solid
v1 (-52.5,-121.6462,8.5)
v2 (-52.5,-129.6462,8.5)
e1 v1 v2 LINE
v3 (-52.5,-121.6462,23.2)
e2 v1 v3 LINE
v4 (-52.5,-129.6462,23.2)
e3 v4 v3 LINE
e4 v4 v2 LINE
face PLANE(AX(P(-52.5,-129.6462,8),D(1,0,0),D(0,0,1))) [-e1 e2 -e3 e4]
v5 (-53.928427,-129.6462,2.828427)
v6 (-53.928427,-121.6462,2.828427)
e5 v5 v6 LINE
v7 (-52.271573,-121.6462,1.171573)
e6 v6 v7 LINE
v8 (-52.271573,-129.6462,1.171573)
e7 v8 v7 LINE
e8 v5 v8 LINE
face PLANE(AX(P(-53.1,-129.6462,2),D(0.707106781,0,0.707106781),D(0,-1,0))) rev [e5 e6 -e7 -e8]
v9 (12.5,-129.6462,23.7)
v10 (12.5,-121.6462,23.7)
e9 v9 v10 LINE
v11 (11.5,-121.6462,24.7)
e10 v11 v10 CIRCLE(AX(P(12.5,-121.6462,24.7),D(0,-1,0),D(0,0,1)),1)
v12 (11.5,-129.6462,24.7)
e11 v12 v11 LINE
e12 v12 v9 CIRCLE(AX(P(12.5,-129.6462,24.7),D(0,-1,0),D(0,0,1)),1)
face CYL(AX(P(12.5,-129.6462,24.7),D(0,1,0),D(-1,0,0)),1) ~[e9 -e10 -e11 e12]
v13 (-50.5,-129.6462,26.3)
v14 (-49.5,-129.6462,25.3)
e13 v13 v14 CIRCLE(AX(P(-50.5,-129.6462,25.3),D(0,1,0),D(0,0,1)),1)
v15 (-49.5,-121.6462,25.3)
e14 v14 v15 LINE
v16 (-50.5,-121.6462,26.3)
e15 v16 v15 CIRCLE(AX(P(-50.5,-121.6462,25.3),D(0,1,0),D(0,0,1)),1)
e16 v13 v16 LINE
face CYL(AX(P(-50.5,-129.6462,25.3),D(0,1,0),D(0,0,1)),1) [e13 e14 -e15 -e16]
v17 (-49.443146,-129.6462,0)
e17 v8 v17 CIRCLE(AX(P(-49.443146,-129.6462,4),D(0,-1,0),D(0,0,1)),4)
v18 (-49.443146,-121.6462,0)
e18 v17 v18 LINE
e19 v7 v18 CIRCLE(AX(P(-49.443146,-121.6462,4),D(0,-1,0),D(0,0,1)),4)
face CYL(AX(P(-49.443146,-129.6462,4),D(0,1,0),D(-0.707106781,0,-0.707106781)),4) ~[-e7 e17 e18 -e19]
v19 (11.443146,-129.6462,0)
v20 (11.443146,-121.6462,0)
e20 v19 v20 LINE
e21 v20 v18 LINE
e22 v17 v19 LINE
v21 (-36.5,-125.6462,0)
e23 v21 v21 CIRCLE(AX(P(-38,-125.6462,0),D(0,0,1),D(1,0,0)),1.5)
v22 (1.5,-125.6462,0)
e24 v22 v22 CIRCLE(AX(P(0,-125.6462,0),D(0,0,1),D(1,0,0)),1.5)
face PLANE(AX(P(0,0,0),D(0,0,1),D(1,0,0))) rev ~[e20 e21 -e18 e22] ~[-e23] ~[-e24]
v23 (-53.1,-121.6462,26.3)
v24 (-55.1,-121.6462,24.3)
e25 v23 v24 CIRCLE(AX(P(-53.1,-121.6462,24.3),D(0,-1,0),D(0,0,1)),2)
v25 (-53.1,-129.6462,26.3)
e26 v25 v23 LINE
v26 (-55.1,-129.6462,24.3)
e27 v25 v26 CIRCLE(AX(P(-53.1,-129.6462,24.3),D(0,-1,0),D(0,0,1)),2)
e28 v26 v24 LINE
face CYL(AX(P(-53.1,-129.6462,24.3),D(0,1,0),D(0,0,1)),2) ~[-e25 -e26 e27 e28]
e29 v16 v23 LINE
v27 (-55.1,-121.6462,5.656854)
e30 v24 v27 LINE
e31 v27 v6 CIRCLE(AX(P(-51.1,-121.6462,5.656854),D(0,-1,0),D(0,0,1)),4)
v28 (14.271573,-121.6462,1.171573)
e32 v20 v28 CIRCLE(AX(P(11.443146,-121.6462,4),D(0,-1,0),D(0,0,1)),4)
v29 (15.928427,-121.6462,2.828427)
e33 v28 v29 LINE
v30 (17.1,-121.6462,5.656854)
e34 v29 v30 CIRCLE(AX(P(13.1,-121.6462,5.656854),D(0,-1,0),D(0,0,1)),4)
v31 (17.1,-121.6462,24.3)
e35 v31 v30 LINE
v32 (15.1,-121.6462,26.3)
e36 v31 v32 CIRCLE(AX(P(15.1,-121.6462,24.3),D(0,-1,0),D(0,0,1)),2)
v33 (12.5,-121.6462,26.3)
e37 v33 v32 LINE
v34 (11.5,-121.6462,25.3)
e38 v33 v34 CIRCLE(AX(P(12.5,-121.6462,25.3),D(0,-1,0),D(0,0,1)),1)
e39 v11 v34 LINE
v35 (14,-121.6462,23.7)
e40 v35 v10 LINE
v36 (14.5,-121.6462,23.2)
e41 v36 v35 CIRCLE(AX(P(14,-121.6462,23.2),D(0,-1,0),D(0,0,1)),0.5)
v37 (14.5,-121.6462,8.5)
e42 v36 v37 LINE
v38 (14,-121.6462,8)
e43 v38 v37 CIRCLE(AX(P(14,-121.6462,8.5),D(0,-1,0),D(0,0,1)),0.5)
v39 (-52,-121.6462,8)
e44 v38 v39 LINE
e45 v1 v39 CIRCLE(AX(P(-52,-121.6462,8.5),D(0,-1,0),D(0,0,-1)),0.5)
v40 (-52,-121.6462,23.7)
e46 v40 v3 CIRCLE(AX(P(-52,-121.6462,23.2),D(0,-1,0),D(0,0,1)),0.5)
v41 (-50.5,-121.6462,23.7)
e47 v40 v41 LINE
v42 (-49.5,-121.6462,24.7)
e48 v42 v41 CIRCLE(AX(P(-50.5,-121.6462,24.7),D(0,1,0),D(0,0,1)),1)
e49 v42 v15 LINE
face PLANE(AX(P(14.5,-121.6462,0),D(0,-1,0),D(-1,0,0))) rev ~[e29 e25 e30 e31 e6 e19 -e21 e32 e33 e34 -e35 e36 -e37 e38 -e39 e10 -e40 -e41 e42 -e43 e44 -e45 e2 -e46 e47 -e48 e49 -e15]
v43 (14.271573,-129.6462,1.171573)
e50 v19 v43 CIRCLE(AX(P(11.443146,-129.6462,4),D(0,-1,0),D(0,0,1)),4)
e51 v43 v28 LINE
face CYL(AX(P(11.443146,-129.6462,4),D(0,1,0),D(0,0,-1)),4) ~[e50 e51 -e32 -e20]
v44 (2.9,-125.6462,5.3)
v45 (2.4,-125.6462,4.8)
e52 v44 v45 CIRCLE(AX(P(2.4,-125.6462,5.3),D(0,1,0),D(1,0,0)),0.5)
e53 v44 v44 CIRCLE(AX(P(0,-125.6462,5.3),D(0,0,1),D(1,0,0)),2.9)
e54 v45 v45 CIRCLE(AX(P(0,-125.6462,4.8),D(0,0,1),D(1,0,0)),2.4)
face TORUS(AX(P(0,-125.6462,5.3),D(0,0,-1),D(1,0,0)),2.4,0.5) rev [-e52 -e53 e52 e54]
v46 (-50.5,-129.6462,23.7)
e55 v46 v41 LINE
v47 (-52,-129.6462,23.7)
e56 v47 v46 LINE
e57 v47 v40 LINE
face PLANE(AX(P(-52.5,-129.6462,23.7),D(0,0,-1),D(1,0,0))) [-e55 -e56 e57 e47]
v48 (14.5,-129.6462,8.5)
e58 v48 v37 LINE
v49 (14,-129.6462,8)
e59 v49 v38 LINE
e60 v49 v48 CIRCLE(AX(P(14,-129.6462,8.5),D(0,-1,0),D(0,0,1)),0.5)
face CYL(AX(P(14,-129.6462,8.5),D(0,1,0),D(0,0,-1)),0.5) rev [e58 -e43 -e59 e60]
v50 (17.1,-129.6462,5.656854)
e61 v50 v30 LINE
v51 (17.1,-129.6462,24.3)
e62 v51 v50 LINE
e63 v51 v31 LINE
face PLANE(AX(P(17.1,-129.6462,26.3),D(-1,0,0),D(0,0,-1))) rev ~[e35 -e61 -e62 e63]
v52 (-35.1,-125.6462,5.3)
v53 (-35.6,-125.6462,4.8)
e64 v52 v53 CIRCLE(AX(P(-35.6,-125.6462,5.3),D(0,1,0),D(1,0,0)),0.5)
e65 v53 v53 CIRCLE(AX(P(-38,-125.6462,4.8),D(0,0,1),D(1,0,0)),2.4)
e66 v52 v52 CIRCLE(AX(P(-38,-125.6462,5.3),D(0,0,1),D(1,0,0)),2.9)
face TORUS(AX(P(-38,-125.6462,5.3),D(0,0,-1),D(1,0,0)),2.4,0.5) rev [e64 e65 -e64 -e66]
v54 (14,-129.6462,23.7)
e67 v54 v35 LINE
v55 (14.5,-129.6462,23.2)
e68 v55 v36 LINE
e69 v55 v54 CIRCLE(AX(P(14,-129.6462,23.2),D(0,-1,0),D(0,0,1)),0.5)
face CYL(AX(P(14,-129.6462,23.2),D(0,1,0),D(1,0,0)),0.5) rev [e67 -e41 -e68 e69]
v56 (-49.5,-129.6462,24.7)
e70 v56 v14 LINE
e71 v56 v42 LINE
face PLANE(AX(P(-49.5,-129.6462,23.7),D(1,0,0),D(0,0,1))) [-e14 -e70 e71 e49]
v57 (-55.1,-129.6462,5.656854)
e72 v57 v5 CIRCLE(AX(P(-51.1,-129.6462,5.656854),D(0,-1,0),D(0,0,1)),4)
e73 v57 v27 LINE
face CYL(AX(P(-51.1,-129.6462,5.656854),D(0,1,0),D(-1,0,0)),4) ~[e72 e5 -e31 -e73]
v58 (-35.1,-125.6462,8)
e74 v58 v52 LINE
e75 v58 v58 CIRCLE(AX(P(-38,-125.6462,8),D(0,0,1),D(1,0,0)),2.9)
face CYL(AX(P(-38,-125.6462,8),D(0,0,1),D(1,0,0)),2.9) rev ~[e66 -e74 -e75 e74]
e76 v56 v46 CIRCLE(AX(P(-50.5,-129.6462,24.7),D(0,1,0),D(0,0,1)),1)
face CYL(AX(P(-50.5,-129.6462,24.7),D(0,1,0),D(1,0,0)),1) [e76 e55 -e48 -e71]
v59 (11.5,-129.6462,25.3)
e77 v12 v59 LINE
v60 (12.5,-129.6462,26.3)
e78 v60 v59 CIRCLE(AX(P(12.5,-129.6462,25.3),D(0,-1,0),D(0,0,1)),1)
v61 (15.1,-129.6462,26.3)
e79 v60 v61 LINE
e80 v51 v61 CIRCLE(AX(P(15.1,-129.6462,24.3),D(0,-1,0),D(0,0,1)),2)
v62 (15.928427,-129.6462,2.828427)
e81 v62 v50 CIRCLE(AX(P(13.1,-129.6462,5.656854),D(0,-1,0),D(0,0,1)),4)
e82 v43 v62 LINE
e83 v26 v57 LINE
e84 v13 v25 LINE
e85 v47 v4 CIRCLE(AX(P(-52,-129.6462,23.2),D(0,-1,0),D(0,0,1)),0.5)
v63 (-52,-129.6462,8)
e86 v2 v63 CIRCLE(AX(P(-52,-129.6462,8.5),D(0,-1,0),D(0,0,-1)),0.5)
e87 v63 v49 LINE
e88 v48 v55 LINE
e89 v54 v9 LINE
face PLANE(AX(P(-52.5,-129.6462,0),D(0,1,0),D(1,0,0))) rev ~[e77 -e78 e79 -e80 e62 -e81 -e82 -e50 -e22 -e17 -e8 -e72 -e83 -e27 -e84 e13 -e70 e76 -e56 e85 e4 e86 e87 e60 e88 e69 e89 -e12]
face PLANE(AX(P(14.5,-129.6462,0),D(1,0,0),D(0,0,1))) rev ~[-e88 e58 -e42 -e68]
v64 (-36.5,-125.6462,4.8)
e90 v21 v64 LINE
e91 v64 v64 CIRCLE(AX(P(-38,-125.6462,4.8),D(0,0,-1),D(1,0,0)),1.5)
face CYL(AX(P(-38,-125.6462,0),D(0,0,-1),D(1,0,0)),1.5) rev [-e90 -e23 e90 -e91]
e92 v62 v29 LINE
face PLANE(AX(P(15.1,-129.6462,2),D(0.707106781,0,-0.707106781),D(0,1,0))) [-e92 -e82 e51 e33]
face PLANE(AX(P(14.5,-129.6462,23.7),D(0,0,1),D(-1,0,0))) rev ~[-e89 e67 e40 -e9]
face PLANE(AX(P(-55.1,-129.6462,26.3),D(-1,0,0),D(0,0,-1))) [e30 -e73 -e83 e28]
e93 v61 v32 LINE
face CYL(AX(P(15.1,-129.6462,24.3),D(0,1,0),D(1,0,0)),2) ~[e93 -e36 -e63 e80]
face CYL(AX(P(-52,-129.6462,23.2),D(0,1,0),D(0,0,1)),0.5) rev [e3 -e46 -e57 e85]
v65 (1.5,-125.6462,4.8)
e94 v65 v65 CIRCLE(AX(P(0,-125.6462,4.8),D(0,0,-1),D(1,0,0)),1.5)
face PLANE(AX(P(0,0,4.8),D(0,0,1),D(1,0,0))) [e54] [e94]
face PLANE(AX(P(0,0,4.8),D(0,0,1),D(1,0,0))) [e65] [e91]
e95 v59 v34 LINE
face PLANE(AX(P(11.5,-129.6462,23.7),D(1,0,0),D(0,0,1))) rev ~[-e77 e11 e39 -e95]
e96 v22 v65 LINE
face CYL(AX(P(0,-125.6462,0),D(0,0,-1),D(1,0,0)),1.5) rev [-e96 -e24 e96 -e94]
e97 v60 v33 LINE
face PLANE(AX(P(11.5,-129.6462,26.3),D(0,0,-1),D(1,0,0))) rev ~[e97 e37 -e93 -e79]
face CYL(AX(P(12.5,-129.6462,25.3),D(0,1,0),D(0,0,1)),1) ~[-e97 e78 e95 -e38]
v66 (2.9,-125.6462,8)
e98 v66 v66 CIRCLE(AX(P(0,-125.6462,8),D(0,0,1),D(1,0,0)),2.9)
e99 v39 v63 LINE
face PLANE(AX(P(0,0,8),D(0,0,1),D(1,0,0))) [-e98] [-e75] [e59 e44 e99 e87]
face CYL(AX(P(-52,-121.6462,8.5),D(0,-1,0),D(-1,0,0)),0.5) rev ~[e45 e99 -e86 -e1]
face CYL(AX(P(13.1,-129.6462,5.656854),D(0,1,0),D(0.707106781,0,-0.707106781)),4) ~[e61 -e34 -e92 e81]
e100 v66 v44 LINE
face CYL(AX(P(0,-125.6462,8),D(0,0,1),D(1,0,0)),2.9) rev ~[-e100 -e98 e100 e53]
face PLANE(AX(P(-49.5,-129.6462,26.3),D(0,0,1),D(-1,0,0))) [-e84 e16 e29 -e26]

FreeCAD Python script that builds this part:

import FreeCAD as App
import Part
import Sketcher


def edges_at(feature, points):
    """Names of the edges that pass closest to the given points."""
    edges = feature.Shape.Edges
    near = lambda p: min(range(len(edges)), key=lambda i: edges[i].distToShape(Part.Vertex(*p))[0])
    return sorted({f"Edge{near(p) + 1}" for p in points})

doc = App.newDocument("Part")
body = doc.addObject("PartDesign::Body", "Body")

sketch1 = body.newObject("Sketcher::SketchObject", "Sketch")
sketch1.AttachmentSupport = (doc.getObject("XY_Plane"), [""])
sketch1.MapMode = "FlatFace"
sketch1.addGeometry([
    Part.LineSegment(App.Vector(14.5, -129.6, 0), App.Vector(14.5, -121.6, 0)),
    Part.LineSegment(App.Vector(14.5, -121.6, 0), App.Vector(-52.5, -121.6, 0)),
    Part.LineSegment(App.Vector(-52.5, -121.6, 0), App.Vector(-52.5, -129.6, 0)),
    Part.LineSegment(App.Vector(-52.5, -129.6, 0), App.Vector(14.5, -129.6, 0)),
    Part.Circle(App.Vector(-38, -125.6, 0), App.Vector(0, 0, 1), 1.5),
    Part.Circle(App.Vector(0, -125.6, 0), App.Vector(0, 0, 1), 1.5),
], False)
sketch1.addConstraint([
    Sketcher.Constraint("Coincident", 0, 2, 1, 1),
    Sketcher.Constraint("Coincident", 1, 2, 2, 1),
    Sketcher.Constraint("Coincident", 2, 2, 3, 1),
    Sketcher.Constraint("Coincident", 3, 2, 0, 1),
    Sketcher.Constraint("Vertical", 0),
    Sketcher.Constraint("Horizontal", 1),
    Sketcher.Constraint("Vertical", 2),
    Sketcher.Constraint("Horizontal", 3),
    Sketcher.Constraint("Equal", 4, 5),
    Sketcher.Constraint("PointOnObject", 5, 3, -2),
    Sketcher.Constraint("Horizontal", 4, 3, 5, 3),
    Sketcher.Constraint("DistanceX", 1, 2, 1, 1, 67.0),
    Sketcher.Constraint("Diameter", 4, 3.0),
    Sketcher.Constraint("DistanceX", 4, 3, -1, 1, 38.0),
    Sketcher.Constraint("DistanceY", 5, 3, 0, 2, 4.0),
    Sketcher.Constraint("DistanceY", 2, 2, 4, 3, 4.0),
    Sketcher.Constraint("DistanceX", -1, 1, 0, 2, 14.5),
    Sketcher.Constraint("DistanceY", 4, 3, -1, 1, 125.6462),
])
pad1 = body.newObject("PartDesign::Pad", "Pad")
pad1.Profile = sketch1
pad1.Length = 8

sketch2 = body.newObject("Sketcher::SketchObject", "Sketch001")
sketch2.AttachmentSupport = (doc.getObject("XY_Plane"), [""])
sketch2.MapMode = "FlatFace"
sketch2.AttachmentOffset = App.Placement(App.Vector(0, 0, 8), App.Rotation())
sketch2.addGeometry([
    Part.Circle(App.Vector(0, -125.6, 0), App.Vector(0, 0, 1), 2.9),
    Part.Circle(App.Vector(-38, -125.6, 0), App.Vector(0, 0, 1), 2.9),
], False)
sketch2.addConstraint([
    Sketcher.Constraint("Equal", 0, 1),
    Sketcher.Constraint("PointOnObject", 0, 3, -2),
    Sketcher.Constraint("Horizontal", 0, 3, 1, 3),
    Sketcher.Constraint("Diameter", 0, 5.8),
    Sketcher.Constraint("DistanceX", 1, 3, -1, 1, 38.0),
    Sketcher.Constraint("DistanceY", 0, 3, -1, 1, 125.6462),
])
pocket1 = body.newObject("PartDesign::Pocket", "Pocket")
pocket1.Profile = sketch2
pocket1.Length = 3.2
doc.recompute()

fillet = body.newObject("PartDesign::Fillet", "Fillet")
fillet.Base = (pocket1, edges_at(pocket1, [(-40.9, -125.646, 4.8), (-2.9, -125.646, 4.8)]))
fillet.Radius = 0.5

sketch3 = body.newObject("Sketcher::SketchObject", "Sketch002")
sketch3.AttachmentSupport = (doc.getObject("XZ_Plane"), [""])
sketch3.MapMode = "FlatFace"
sketch3.AttachmentOffset = App.Placement(App.Vector(0, 0, 129.6462), App.Rotation())
sketch3.addGeometry([
    Part.LineSegment(App.Vector(-55.1, 0, 0), App.Vector(-52.5, 0, 0)),
    Part.LineSegment(App.Vector(-52.5, 0, 0), App.Vector(-52.5, 23.7, 0)),
    Part.LineSegment(App.Vector(-52.5, 23.7, 0), App.Vector(-49.5, 23.7, 0)),
    Part.LineSegment(App.Vector(-49.5, 23.7, 0), App.Vector(-49.5, 26.3, 0)),
    Part.LineSegment(App.Vector(-49.5, 26.3, 0), App.Vector(-55.1, 26.3, 0)),
    Part.LineSegment(App.Vector(-55.1, 26.3, 0), App.Vector(-55.1, 0, 0)),
    Part.LineSegment(App.Vector(14.5, 23.7, 0), App.Vector(14.5, 0, 0)),
    Part.LineSegment(App.Vector(14.5, 0, 0), App.Vector(17.1, 0, 0)),
    Part.LineSegment(App.Vector(17.1, 0, 0), App.Vector(17.1, 26.3, 0)),
    Part.LineSegment(App.Vector(17.1, 26.3, 0), App.Vector(11.5, 26.3, 0)),
    Part.LineSegment(App.Vector(11.5, 26.3, 0), App.Vector(11.5, 23.7, 0)),
    Part.LineSegment(App.Vector(11.5, 23.7, 0), App.Vector(14.5, 23.7, 0)),
], False)
sketch3.addConstraint([
    Sketcher.Constraint("Coincident", 0, 2, 1, 1),
    Sketcher.Constraint("Coincident", 1, 2, 2, 1),
    Sketcher.Constraint("Coincident", 2, 2, 3, 1),
    Sketcher.Constraint("Coincident", 3, 2, 4, 1),
    Sketcher.Constraint("Coincident", 4, 2, 5, 1),
    Sketcher.Constraint("Coincident", 5, 2, 0, 1),
    Sketcher.Constraint("Coincident", 6, 2, 7, 1),
    Sketcher.Constraint("Coincident", 7, 2, 8, 1),
    Sketcher.Constraint("Coincident", 8, 2, 9, 1),
    Sketcher.Constraint("Coincident", 9, 2, 10, 1),
    Sketcher.Constraint("Coincident", 10, 2, 11, 1),
    Sketcher.Constraint("Coincident", 11, 2, 6, 1),
    Sketcher.Constraint("Horizontal", 0),
    Sketcher.Constraint("Vertical", 1),
    Sketcher.Constraint("Horizontal", 2),
    Sketcher.Constraint("Vertical", 3),
    Sketcher.Constraint("Horizontal", 4),
    Sketcher.Constraint("Vertical", 5),
    Sketcher.Constraint("Vertical", 6),
    Sketcher.Constraint("Horizontal", 7),
    Sketcher.Constraint("Vertical", 8),
    Sketcher.Constraint("Horizontal", 9),
    Sketcher.Constraint("Vertical", 10),
    Sketcher.Constraint("Horizontal", 11),
    Sketcher.Constraint("PointOnObject", 0, 2, -1),
    Sketcher.Constraint("PointOnObject", 6, 2, -1),
    Sketcher.Constraint("Horizontal", 4, 2, 8, 2),
    Sketcher.Constraint("Horizontal", 2, 2, 10, 2),
    Sketcher.Constraint("Equal", 0, 7),
    Sketcher.Constraint("Equal", 4, 9),
    Sketcher.Constraint("Equal", 7, 3),
    Sketcher.Constraint("DistanceX", 2, 1, 2, 2, 3.0),
    Sketcher.Constraint("DistanceX", 0, 1, 0, 2, 2.6),
    Sketcher.Constraint("DistanceY", 1, 1, 1, 2, 23.7),
    Sketcher.Constraint("DistanceX", 0, 2, 6, 2, 67.0),
    Sketcher.Constraint("DistanceX", 0, 2, -1, 1, 52.5),
])
pad2 = body.newObject("PartDesign::Pad", "Pad001")
pad2.Profile = sketch3
pad2.Length = 8
pad2.Reversed = True
doc.recompute()

fillet2 = body.newObject("PartDesign::Fillet", "Fillet001")
fillet2.Base = (pad2, edges_at(pad2, [(-55.1, -125.646, 26.3), (17.1, -125.646, 26.3)]))
fillet2.Radius = 2
doc.recompute()

fillet3 = body.newObject("PartDesign::Fillet", "Fillet002")
fillet3.Base = (fillet2, edges_at(fillet2, [
    (-49.5, -125.646, 26.3),
    (-49.5, -125.646, 23.7),
    (11.5, -125.646, 23.7),
    (11.5, -125.646, 26.3),
]))
fillet3.Radius = 1
doc.recompute()

chamfer = body.newObject("PartDesign::Chamfer", "Chamfer")
chamfer.Base = (fillet3, edges_at(fillet3, [(17.1, -125.646, 0), (-55.1, -125.646, 0)]))
chamfer.Size = 4
doc.recompute()

fillet4 = body.newObject("PartDesign::Fillet", "Fillet003")
fillet4.Base = (chamfer, edges_at(chamfer, [
    (-55.1, -125.646, 4),
    (17.1, -125.646, 4),
    (13.1, -125.646, 0),
    (-51.1, -125.646, 0),
]))
fillet4.Radius = 4
doc.recompute()

fillet5 = body.newObject("PartDesign::Fillet", "Fillet004")
fillet5.Base = (fillet4, edges_at(fillet4, [
    (14.5, -125.646, 8),
    (-52.5, -125.646, 8),
    (-52.5, -125.646, 23.7),
    (14.5, -125.646, 23.7),
]))
fillet5.Radius = 0.5

doc.recompute()
